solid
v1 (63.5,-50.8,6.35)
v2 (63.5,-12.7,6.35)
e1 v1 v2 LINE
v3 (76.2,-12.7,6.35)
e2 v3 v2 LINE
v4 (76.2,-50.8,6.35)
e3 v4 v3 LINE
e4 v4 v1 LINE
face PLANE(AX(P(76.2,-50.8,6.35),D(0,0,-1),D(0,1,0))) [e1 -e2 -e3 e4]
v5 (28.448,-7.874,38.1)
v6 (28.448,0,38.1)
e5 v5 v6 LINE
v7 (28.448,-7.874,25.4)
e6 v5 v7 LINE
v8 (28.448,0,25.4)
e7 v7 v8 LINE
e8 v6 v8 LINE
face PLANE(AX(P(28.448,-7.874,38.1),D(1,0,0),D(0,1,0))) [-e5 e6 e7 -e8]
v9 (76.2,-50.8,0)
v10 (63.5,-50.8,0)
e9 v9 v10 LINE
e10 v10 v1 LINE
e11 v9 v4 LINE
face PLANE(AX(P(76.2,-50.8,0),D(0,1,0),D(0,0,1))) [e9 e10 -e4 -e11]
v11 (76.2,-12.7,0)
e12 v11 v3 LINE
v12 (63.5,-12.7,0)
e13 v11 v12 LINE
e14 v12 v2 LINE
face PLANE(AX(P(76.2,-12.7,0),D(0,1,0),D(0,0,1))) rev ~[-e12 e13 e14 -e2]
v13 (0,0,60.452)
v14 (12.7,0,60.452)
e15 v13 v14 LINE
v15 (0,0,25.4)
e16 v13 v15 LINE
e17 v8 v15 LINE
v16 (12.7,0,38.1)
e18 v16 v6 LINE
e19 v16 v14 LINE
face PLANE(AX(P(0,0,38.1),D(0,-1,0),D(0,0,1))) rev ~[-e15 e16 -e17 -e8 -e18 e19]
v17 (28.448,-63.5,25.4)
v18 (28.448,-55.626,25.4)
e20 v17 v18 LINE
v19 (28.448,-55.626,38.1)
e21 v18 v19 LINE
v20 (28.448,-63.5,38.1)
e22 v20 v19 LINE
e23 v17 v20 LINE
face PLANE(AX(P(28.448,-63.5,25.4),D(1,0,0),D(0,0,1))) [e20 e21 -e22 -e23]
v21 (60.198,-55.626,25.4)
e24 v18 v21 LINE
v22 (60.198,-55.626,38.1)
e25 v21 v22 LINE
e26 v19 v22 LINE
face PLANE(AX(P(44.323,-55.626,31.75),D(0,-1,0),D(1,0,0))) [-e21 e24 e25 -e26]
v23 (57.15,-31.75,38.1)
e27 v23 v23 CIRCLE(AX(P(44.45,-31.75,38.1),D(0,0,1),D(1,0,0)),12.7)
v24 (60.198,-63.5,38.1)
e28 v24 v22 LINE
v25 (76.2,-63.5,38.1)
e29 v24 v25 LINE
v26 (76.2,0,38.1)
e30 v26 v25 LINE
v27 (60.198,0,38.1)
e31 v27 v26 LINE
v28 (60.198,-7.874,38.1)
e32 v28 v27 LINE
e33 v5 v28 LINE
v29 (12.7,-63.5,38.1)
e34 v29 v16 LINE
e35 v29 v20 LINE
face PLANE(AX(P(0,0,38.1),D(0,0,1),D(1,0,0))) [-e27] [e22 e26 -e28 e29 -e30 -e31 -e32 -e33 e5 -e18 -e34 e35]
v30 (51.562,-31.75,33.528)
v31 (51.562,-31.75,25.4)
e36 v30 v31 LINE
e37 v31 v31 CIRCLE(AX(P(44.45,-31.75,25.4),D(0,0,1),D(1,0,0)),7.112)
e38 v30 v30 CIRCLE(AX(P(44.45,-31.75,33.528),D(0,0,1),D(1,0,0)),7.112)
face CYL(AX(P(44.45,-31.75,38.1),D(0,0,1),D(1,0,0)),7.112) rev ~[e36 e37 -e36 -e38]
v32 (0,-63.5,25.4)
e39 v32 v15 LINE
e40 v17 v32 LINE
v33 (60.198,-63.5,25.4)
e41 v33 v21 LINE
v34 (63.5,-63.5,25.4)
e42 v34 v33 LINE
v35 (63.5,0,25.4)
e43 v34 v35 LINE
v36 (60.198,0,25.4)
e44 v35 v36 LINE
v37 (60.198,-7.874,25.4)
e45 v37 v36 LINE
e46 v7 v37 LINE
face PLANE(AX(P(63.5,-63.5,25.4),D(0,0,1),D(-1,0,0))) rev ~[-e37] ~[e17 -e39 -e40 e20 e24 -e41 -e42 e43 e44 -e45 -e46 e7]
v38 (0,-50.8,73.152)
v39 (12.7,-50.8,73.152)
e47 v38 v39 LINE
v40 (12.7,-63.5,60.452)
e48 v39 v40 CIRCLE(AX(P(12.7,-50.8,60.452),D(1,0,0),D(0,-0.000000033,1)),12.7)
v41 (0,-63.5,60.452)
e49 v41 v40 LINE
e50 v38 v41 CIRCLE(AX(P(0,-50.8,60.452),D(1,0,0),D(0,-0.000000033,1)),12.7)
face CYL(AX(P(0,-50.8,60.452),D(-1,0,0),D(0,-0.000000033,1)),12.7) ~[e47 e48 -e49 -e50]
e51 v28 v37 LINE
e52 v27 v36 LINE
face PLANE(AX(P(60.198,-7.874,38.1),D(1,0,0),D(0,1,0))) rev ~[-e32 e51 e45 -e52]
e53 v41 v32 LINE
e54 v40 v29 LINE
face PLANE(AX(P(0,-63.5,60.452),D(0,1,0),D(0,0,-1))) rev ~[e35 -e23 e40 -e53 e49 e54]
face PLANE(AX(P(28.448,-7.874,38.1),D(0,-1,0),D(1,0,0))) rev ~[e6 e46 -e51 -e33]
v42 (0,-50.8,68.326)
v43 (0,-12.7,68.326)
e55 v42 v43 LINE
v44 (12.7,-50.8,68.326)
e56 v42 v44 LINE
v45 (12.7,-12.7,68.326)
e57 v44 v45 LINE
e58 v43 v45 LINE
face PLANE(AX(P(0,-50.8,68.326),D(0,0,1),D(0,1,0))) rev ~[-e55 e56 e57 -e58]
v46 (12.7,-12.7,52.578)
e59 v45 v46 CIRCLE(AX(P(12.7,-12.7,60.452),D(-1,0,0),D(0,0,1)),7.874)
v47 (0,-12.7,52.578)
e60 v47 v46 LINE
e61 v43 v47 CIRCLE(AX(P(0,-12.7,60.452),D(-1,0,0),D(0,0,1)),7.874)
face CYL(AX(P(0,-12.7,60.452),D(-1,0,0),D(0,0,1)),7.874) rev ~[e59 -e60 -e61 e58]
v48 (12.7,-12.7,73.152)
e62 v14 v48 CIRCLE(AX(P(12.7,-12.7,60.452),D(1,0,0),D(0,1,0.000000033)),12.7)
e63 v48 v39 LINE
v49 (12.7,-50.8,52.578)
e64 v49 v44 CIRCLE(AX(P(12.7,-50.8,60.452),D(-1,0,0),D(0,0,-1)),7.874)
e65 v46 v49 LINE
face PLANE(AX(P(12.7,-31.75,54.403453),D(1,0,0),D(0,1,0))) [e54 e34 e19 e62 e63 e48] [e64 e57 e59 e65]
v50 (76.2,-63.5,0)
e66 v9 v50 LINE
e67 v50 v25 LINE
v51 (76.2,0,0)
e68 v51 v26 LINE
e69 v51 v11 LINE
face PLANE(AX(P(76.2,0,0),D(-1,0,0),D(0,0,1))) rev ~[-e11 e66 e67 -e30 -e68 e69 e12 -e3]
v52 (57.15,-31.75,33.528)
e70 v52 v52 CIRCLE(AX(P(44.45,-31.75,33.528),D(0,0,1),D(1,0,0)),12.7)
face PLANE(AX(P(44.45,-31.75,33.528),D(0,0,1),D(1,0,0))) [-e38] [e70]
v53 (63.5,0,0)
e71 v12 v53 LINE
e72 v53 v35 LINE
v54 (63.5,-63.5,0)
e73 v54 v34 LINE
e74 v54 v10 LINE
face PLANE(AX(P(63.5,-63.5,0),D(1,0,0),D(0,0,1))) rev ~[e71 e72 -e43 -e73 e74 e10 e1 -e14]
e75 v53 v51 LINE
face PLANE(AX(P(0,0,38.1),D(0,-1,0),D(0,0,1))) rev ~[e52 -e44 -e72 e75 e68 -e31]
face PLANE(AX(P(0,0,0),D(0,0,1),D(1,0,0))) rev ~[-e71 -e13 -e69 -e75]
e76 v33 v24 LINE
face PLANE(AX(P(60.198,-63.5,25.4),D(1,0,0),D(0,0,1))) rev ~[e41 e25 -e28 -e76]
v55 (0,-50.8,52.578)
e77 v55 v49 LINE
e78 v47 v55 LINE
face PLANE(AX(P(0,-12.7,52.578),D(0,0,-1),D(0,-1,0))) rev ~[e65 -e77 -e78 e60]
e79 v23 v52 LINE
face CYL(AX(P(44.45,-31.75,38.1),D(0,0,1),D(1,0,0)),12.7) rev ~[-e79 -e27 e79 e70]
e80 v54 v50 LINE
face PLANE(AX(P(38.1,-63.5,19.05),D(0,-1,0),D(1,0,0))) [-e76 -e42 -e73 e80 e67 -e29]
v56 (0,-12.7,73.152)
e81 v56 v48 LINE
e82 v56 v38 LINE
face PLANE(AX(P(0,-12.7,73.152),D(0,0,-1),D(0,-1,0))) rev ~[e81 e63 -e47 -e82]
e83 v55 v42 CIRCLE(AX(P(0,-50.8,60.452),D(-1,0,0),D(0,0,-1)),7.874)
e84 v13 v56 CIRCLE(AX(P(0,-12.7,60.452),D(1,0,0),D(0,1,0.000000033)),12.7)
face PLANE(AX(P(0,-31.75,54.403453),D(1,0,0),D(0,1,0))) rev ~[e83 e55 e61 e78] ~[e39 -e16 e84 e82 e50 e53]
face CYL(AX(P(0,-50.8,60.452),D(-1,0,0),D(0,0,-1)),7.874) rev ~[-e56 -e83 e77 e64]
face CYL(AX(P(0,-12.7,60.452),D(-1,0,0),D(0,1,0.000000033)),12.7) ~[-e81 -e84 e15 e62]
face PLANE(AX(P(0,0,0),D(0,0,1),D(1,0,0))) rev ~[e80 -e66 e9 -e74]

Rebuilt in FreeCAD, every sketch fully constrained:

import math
import FreeCAD as App
import Part
import Sketcher
Q = App.Units.Quantity

doc = App.newDocument("Part")
params = doc.addObject("Spreadsheet::Sheet", "Params")
for row, (alias, value) in enumerate([
    ("sketch1_width", "3 in"),
    ("sketch1_height", "1.5 in"),
    ("pad1_length", "2.5 in"),
    ("sketch2_height", "1 in"),
    ("sketch2_width", "2.5 in"),
    ("sketch3_height", "0.5 in"),
    ("sketch3_width", "1.25 in"),
    ("pocket2_length", "0.31 in"),
    ("sketch4_width", "1.5 in"),
    ("sketch4_height", "0.25 in"),
    ("sketch5_radius", "0.5 in"),
    ("sketch5_radius2", "0.31 in"),
    ("sketch5_width", "2.5 in"),
    ("sketch5_height", "0.88 in"),
    ("pad2_length", "0.5 in"),
    ("sketch6_diameter", "1 in"),
    ("sketch6_diameter2", "0.56 in"),
    ("pocket4_length", "0.18 in"),
    ("sketch7_diameter", "0.56 in"),
    ("sketch8_width", "1.25 in"),
    ("sketch8_height", "0.31 in"),
], start=1):
    params.set(f"A{row}", alias)
    params.set(f"B{row}", "=" + value)
    params.setAlias(f"B{row}", alias)

body = doc.addObject("PartDesign::Body", "Body")

# Sketch on XZ plane
sketch1 = body.newObject("Sketcher::SketchObject", "Sketch")
sketch1.AttachmentSupport = (doc.getObject("XZ_Plane"), [""])
sketch1.MapMode = "FlatFace"
sketch1.addGeometry(Part.LineSegment(App.Vector(0, 38, 0), App.Vector(0, 0, 0)), False)
sketch1.addGeometry(Part.LineSegment(App.Vector(0, 0, 0), App.Vector(76, 0, 0)), False)
sketch1.addGeometry(Part.LineSegment(App.Vector(76, 0, 0), App.Vector(76, 38, 0)), False)
sketch1.addGeometry(Part.LineSegment(App.Vector(76, 38, 0), App.Vector(0, 38, 0)), False)
sketch1.addConstraint(Sketcher.Constraint("Coincident", 0, 2, 1, 1))
sketch1.addConstraint(Sketcher.Constraint("Coincident", 1, 2, 2, 1))
sketch1.addConstraint(Sketcher.Constraint("Coincident", 2, 2, 3, 1))
sketch1.addConstraint(Sketcher.Constraint("Coincident", 3, 2, 0, 1))
sketch1.addConstraint(Sketcher.Constraint("Vertical", 0))
sketch1.addConstraint(Sketcher.Constraint("Horizontal", 1))
sketch1.addConstraint(Sketcher.Constraint("Vertical", 2))
sketch1.addConstraint(Sketcher.Constraint("Horizontal", 3))
sketch1.addConstraint(Sketcher.Constraint("Coincident", 0, 2, -1, 1))
sketch1.addConstraint(Sketcher.Constraint("DistanceX", 1, 1, 1, 2, Q("3 in")))
sketch1.addConstraint(Sketcher.Constraint("DistanceY", 0, 2, 0, 1, Q("1.5 in")))
sketch1.setExpression("Constraints[9]", "Params.sketch1_width")
sketch1.setExpression("Constraints[10]", "Params.sketch1_height")
pad1 = body.newObject("PartDesign::Pad", "Pad")
pad1.Profile = sketch1
pad1.setExpression("Length", "Params.pad1_length")

# Sketch on XZ plane
sketch2 = body.newObject("Sketcher::SketchObject", "Sketch001")
sketch2.AttachmentSupport = (doc.getObject("XZ_Plane"), [""])
sketch2.MapMode = "FlatFace"
sketch2.AttachmentOffset = App.Placement(App.Vector(0, 0, 2.5 * 25.4), App.Rotation())
sketch2.addGeometry(Part.LineSegment(App.Vector(0, 0, 0), App.Vector(64, 0, 0)), False)
sketch2.addGeometry(Part.LineSegment(App.Vector(64, 0, 0), App.Vector(64, 25, 0)), False)
sketch2.addGeometry(Part.LineSegment(App.Vector(64, 25, 0), App.Vector(0, 25, 0)), False)
sketch2.addGeometry(Part.LineSegment(App.Vector(0, 25, 0), App.Vector(0, 0, 0)), False)
sketch2.addConstraint(Sketcher.Constraint("Coincident", 0, 2, 1, 1))
sketch2.addConstraint(Sketcher.Constraint("Coincident", 1, 2, 2, 1))
sketch2.addConstraint(Sketcher.Constraint("Coincident", 2, 2, 3, 1))
sketch2.addConstraint(Sketcher.Constraint("Coincident", 3, 2, 0, 1))
sketch2.addConstraint(Sketcher.Constraint("Horizontal", 0))
sketch2.addConstraint(Sketcher.Constraint("Vertical", 1))
sketch2.addConstraint(Sketcher.Constraint("Horizontal", 2))
sketch2.addConstraint(Sketcher.Constraint("Vertical", 3))
sketch2.addConstraint(Sketcher.Constraint("Coincident", 3, 2, -1, 1))
sketch2.addConstraint(Sketcher.Constraint("DistanceY", 1, 1, 1, 2, Q("1 in")))
sketch2.addConstraint(Sketcher.Constraint("DistanceX", 0, 1, 0, 2, Q("2.5 in")))
sketch2.setExpression("Constraints[9]", "Params.sketch2_height")
sketch2.setExpression("Constraints[10]", "Params.sketch2_width")
pocket1 = body.newObject("PartDesign::Pocket", "Pocket")
pocket1.Profile = sketch2
pocket1.Type = "ThroughAll"

# Sketch on XZ plane
sketch3 = body.newObject("Sketcher::SketchObject", "Sketch002")
sketch3.AttachmentSupport = (doc.getObject("XZ_Plane"), [""])
sketch3.MapMode = "FlatFace"
sketch3.AttachmentOffset = App.Placement(App.Vector(0, 0, 2.5 * 25.4), App.Rotation())
sketch3.addGeometry(Part.LineSegment(App.Vector(28, 38, 0), App.Vector(28, 25, 0)), False)
sketch3.addGeometry(Part.LineSegment(App.Vector(28, 25, 0), App.Vector(60, 25, 0)), False)
sketch3.addGeometry(Part.LineSegment(App.Vector(60, 25, 0), App.Vector(60, 38, 0)), False)
sketch3.addGeometry(Part.LineSegment(App.Vector(60, 38, 0), App.Vector(28, 38, 0)), False)
sketch3.addConstraint(Sketcher.Constraint("Coincident", 0, 2, 1, 1))
sketch3.addConstraint(Sketcher.Constraint("Coincident", 1, 2, 2, 1))
sketch3.addConstraint(Sketcher.Constraint("Coincident", 2, 2, 3, 1))
sketch3.addConstraint(Sketcher.Constraint("Coincident", 3, 2, 0, 1))
sketch3.addConstraint(Sketcher.Constraint("Vertical", 0))
sketch3.addConstraint(Sketcher.Constraint("Horizontal", 1))
sketch3.addConstraint(Sketcher.Constraint("Vertical", 2))
sketch3.addConstraint(Sketcher.Constraint("Horizontal", 3))
sketch3.addConstraint(Sketcher.Constraint("DistanceY", 0, 2, 0, 1, Q("0.5 in")))
sketch3.addConstraint(Sketcher.Constraint("DistanceY", -1, 1, 0, 2, Q("1 in")))
sketch3.addConstraint(Sketcher.Constraint("DistanceX", 1, 1, 1, 2, Q("1.25 in")))
sketch3.addConstraint(Sketcher.Constraint("DistanceX", -1, 1, 0, 2, Q("1.12 in")))
sketch3.setExpression("Constraints[8]", "Params.sketch3_height")
sketch3.setExpression("Constraints[10]", "Params.sketch3_width")
pocket2 = body.newObject("PartDesign::Pocket", "Pocket001")
pocket2.Profile = sketch3
pocket2.setExpression("Length", "Params.pocket2_length")

# Sketch on YZ plane
sketch4 = body.newObject("Sketcher::SketchObject", "Sketch003")
sketch4.AttachmentSupport = (doc.getObject("YZ_Plane"), [""])
sketch4.MapMode = "FlatFace"
sketch4.AttachmentOffset = App.Placement(App.Vector(0, 0, 3 * 25.4), App.Rotation())
sketch4.addGeometry(Part.LineSegment(App.Vector(-51, 6, 0), App.Vector(-51, 0, 0)), False)
sketch4.addGeometry(Part.LineSegment(App.Vector(-51, 0, 0), App.Vector(-13, 0, 0)), False)
sketch4.addGeometry(Part.LineSegment(App.Vector(-13, 0, 0), App.Vector(-13, 6, 0)), False)
sketch4.addGeometry(Part.LineSegment(App.Vector(-13, 6, 0), App.Vector(-51, 6, 0)), False)
sketch4.addConstraint(Sketcher.Constraint("Coincident", 0, 2, 1, 1))
sketch4.addConstraint(Sketcher.Constraint("Coincident", 1, 2, 2, 1))
sketch4.addConstraint(Sketcher.Constraint("Coincident", 2, 2, 3, 1))
sketch4.addConstraint(Sketcher.Constraint("Coincident", 3, 2, 0, 1))
sketch4.addConstraint(Sketcher.Constraint("Vertical", 0))
sketch4.addConstraint(Sketcher.Constraint("Horizontal", 1))
sketch4.addConstraint(Sketcher.Constraint("Vertical", 2))
sketch4.addConstraint(Sketcher.Constraint("Horizontal", 3))
sketch4.addConstraint(Sketcher.Constraint("PointOnObject", 0, 2, -1))
sketch4.addConstraint(Sketcher.Constraint("DistanceX", 1, 1, 1, 2, Q("1.5 in")))
sketch4.addConstraint(Sketcher.Constraint("DistanceX", 0, 2, -1, 1, Q("2 in")))
sketch4.addConstraint(Sketcher.Constraint("DistanceY", 0, 2, 0, 1, Q("0.25 in")))
sketch4.setExpression("Constraints[9]", "Params.sketch4_width")
sketch4.setExpression("Constraints[11]", "Params.sketch4_height")
pocket3 = body.newObject("PartDesign::Pocket", "Pocket002")
pocket3.Profile = sketch4
pocket3.Type = "ThroughAll"

# Sketch on YZ plane
sketch5 = body.newObject("Sketcher::SketchObject", "Sketch004")
sketch5.AttachmentSupport = (doc.getObject("YZ_Plane"), [""])
sketch5.MapMode = "FlatFace"
sketch5.addGeometry(Part.LineSegment(App.Vector(-64, 38, 0), App.Vector(0, 38, 0)), False)
sketch5.addGeometry(Part.LineSegment(App.Vector(0, 38, 0), App.Vector(0, 60, 0)), False)
sketch5.addGeometry(Part.ArcOfCircle(Part.Circle(App.Vector(-13, 60, 0), App.Vector(0, 0, 1), 13), math.radians(0), math.radians(90)), False)
sketch5.addGeometry(Part.LineSegment(App.Vector(-13, 73, 0), App.Vector(-51, 73, 0)), False)
sketch5.addGeometry(Part.ArcOfCircle(Part.Circle(App.Vector(-51, 60, 0), App.Vector(0, 0, 1), 13), math.radians(90), math.radians(180)), False)
sketch5.addGeometry(Part.LineSegment(App.Vector(-64, 60, 0), App.Vector(-64, 38, 0)), False)
sketch5.addGeometry(Part.LineSegment(App.Vector(-13, 53, 0), App.Vector(-51, 53, 0)), False)
sketch5.addGeometry(Part.ArcOfCircle(Part.Circle(App.Vector(-51, 60, 0), App.Vector(0, 0, 1), 8), math.radians(90), math.radians(270)), False)
sketch5.addGeometry(Part.LineSegment(App.Vector(-51, 68, 0), App.Vector(-13, 68, 0)), False)
sketch5.addGeometry(Part.ArcOfCircle(Part.Circle(App.Vector(-13, 60, 0), App.Vector(0, 0, 1), 8), math.radians(-90), math.radians(90)), False)
sketch5.addConstraint(Sketcher.Constraint("Coincident", 0, 2, 1, 1))
sketch5.addConstraint(Sketcher.Constraint("Tangent", 1, 2, 2, 1))
sketch5.addConstraint(Sketcher.Constraint("Tangent", 2, 2, 3, 1))
sketch5.addConstraint(Sketcher.Constraint("Tangent", 3, 2, 4, 1))
sketch5.addConstraint(Sketcher.Constraint("Tangent", 4, 2, 5, 1))
sketch5.addConstraint(Sketcher.Constraint("Coincident", 5, 2, 0, 1))
sketch5.addConstraint(Sketcher.Constraint("Tangent", 6, 2, 7, 2))
sketch5.addConstraint(Sketcher.Constraint("Tangent", 7, 1, 8, 1))
sketch5.addConstraint(Sketcher.Constraint("Tangent", 8, 2, 9, 2))
sketch5.addConstraint(Sketcher.Constraint("Tangent", 9, 1, 6, 1))
sketch5.addConstraint(Sketcher.Constraint("Horizontal", 0))
sketch5.addConstraint(Sketcher.Constraint("Vertical", 1))
sketch5.addConstraint(Sketcher.Constraint("Horizontal", 3))
sketch5.addConstraint(Sketcher.Constraint("Vertical", 5))
sketch5.addConstraint(Sketcher.Constraint("Horizontal", 6))
sketch5.addConstraint(Sketcher.Constraint("Horizontal", 8))
sketch5.addConstraint(Sketcher.Constraint("Coincident", 7, 3, 4, 3))
sketch5.addConstraint(Sketcher.Constraint("Coincident", 9, 3, 2, 3))
sketch5.addConstraint(Sketcher.Constraint("PointOnObject", 0, 2, -2))
sketch5.addConstraint(Sketcher.Constraint("Radius", 2, Q("0.5 in")))
sketch5.addConstraint(Sketcher.Constraint("Radius", 7, Q("0.31 in")))
sketch5.addConstraint(Sketcher.Constraint("DistanceX", 0, 1, 0, 2, Q("2.5 in")))
sketch5.addConstraint(Sketcher.Constraint("DistanceY", 1, 1, 1, 2, Q("0.88 in")))
sketch5.addConstraint(Sketcher.Constraint("DistanceY", -1, 1, 0, 2, Q("1.5 in")))
sketch5.setExpression("Constraints[19]", "Params.sketch5_radius")
sketch5.setExpression("Constraints[20]", "Params.sketch5_radius2")
sketch5.setExpression("Constraints[21]", "Params.sketch5_width")
sketch5.setExpression("Constraints[22]", "Params.sketch5_height")
pad2 = body.newObject("PartDesign::Pad", "Pad001")
pad2.Profile = sketch5
pad2.setExpression("Length", "Params.pad2_length")

# Sketch on XY plane
sketch6 = body.newObject("Sketcher::SketchObject", "Sketch005")
sketch6.AttachmentSupport = (doc.getObject("XY_Plane"), [""])
sketch6.MapMode = "FlatFace"
sketch6.AttachmentOffset = App.Placement(App.Vector(0, 0, 1.5 * 25.4), App.Rotation())
sketch6.addGeometry(Part.Circle(App.Vector(44, -32, 0), App.Vector(0, 0, 1), 13), False)
sketch6.addGeometry(Part.Circle(App.Vector(44, -32, 0), App.Vector(0, 0, 1), 7), False)
sketch6.addConstraint(Sketcher.Constraint("Coincident", 1, 3, 0, 3))
sketch6.addConstraint(Sketcher.Constraint("Diameter", 0, Q("1 in")))
sketch6.addConstraint(Sketcher.Constraint("Diameter", 1, Q("0.56 in")))
sketch6.addConstraint(Sketcher.Constraint("DistanceX", -1, 1, 0, 3, Q("1.75 in")))
sketch6.addConstraint(Sketcher.Constraint("DistanceY", 0, 3, -1, 1, Q("1.25 in")))
sketch6.setExpression("Constraints[1]", "Params.sketch6_diameter")
sketch6.setExpression("Constraints[2]", "Params.sketch6_diameter2")
pocket4 = body.newObject("PartDesign::Pocket", "Pocket003")
pocket4.Profile = sketch6
pocket4.setExpression("Length", "Params.pocket4_length")

# Sketch on XY plane
sketch7 = body.newObject("Sketcher::SketchObject", "Sketch006")
sketch7.AttachmentSupport = (doc.getObject("XY_Plane"), [""])
sketch7.MapMode = "FlatFace"
sketch7.AttachmentOffset = App.Placement(App.Vector(0, 0, 1.5 * 25.4), App.Rotation())
sketch7.addGeometry(Part.Circle(App.Vector(44, -32, 0), App.Vector(0, 0, 1), 7), False)
sketch7.addConstraint(Sketcher.Constraint("Diameter", 0, Q("0.56 in")))
sketch7.addConstraint(Sketcher.Constraint("DistanceX", -1, 1, 0, 3, Q("1.75 in")))
sketch7.addConstraint(Sketcher.Constraint("DistanceY", 0, 3, -1, 1, Q("1.25 in")))
sketch7.setExpression("Constraints[0]", "Params.sketch7_diameter")
pocket5 = body.newObject("PartDesign::Pocket", "Pocket004")
pocket5.Profile = sketch7
pocket5.Type = "ThroughAll"

# Sketch on XY plane
sketch8 = body.newObject("Sketcher::SketchObject", "Sketch007")
sketch8.AttachmentSupport = (doc.getObject("XY_Plane"), [""])
sketch8.MapMode = "FlatFace"
sketch8.AttachmentOffset = App.Placement(App.Vector(0, 0, 1.5 * 25.4), App.Rotation())
sketch8.addGeometry(Part.LineSegment(App.Vector(28, 0, 0), App.Vector(28, -8, 0)), False)
sketch8.addGeometry(Part.LineSegment(App.Vector(28, -8, 0), App.Vector(60, -8, 0)), False)
sketch8.addGeometry(Part.LineSegment(App.Vector(60, -8, 0), App.Vector(60, 0, 0)), False)
sketch8.addGeometry(Part.LineSegment(App.Vector(60, 0, 0), App.Vector(28, 0, 0)), False)
sketch8.addConstraint(Sketcher.Constraint("Coincident", 0, 2, 1, 1))
sketch8.addConstraint(Sketcher.Constraint("Coincident", 1, 2, 2, 1))
sketch8.addConstraint(Sketcher.Constraint("Coincident", 2, 2, 3, 1))
sketch8.addConstraint(Sketcher.Constraint("Coincident", 3, 2, 0, 1))
sketch8.addConstraint(Sketcher.Constraint("Vertical", 0))
sketch8.addConstraint(Sketcher.Constraint("Horizontal", 1))
sketch8.addConstraint(Sketcher.Constraint("Vertical", 2))
sketch8.addConstraint(Sketcher.Constraint("Horizontal", 3))
sketch8.addConstraint(Sketcher.Constraint("PointOnObject", 2, 2, -1))
sketch8.addConstraint(Sketcher.Constraint("DistanceX", 1, 1, 1, 2, Q("1.25 in")))
sketch8.addConstraint(Sketcher.Constraint("DistanceY", 0, 2, 0, 1, Q("0.31 in")))
sketch8.addConstraint(Sketcher.Constraint("DistanceX", -1, 1, 0, 2, Q("1.12 in")))
sketch8.setExpression("Constraints[9]", "Params.sketch8_width")
sketch8.setExpression("Constraints[10]", "Params.sketch8_height")
pocket6 = body.newObject("PartDesign::Pocket", "Pocket005")
pocket6.Profile = sketch8
pocket6.Type = "ThroughAll"

doc.recompute()
